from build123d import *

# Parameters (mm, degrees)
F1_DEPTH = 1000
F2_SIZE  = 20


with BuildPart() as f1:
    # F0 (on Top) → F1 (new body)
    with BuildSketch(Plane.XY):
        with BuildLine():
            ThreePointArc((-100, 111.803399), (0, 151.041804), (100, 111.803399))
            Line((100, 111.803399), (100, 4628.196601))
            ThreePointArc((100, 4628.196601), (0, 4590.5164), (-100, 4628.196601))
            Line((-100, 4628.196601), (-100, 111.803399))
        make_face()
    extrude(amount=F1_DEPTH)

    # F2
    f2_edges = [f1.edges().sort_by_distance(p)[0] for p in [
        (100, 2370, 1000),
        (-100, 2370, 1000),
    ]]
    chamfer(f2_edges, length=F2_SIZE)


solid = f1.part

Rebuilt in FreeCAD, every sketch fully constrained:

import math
import FreeCAD as App
import Part
import Sketcher

V = App.Vector


def edges_at(feature, points):
    """Names of the edges that pass closest to the given points."""
    edges = feature.Shape.Edges
    near = lambda p: min(range(len(edges)), key=lambda i: edges[i].distToShape(Part.Vertex(*p))[0])
    return sorted({f"Edge{near(p) + 1}" for p in points})

doc = App.newDocument("Part")
body = doc.addObject("PartDesign::Body", "Body")

# Sketch on XY plane
sketch1 = body.newObject("Sketcher::SketchObject", "Sketch")
sketch1.AttachmentSupport = (doc.getObject("XY_Plane"), [""])
sketch1.MapMode = "FlatFace"
sketch1.addGeometry(Part.ArcOfCircle(Part.Circle(V(0, 3.996423, 0), V(0, 0, 1), 147.045381), math.radians(47.151499), math.radians(132.848501)), False)
sketch1.addGeometry(Part.LineSegment(V(100, 111.803399, 0), V(100, 4628.196601, 0)), False)
sketch1.addGeometry(Part.ArcOfCircle(Part.Circle(V(0, 4742.052183, 0), V(0, 0, 1), 151.535783), math.radians(-131.29302), math.radians(-48.70698)), False)
sketch1.addGeometry(Part.LineSegment(V(-100, 4628.196601, 0), V(-100, 111.803399, 0)), False)
sketch1.addConstraint(Sketcher.Constraint("Coincident", 0, 1, 1, 1))
sketch1.addConstraint(Sketcher.Constraint("Coincident", 1, 2, 2, 2))
sketch1.addConstraint(Sketcher.Constraint("Coincident", 2, 1, 3, 1))
sketch1.addConstraint(Sketcher.Constraint("Coincident", 3, 2, 0, 2))
sketch1.addConstraint(Sketcher.Constraint("Vertical", 1))
sketch1.addConstraint(Sketcher.Constraint("Vertical", 3))
sketch1.addConstraint(Sketcher.Constraint("Symmetric", 1, 2, 2, 1, -2))
sketch1.addConstraint(Sketcher.Constraint("PointOnObject", 0, 3, -2))
sketch1.addConstraint(Sketcher.Constraint("DistanceX", -1, 1, 0, 1, 100.0))
sketch1.addConstraint(Sketcher.Constraint("Radius", 0, 147.045381))
sketch1.addConstraint(Sketcher.Constraint("DistanceY", 1, 1, 1, 2, 4516.393202))
sketch1.addConstraint(Sketcher.Constraint("Radius", 2, 151.535783))
sketch1.addConstraint(Sketcher.Constraint("DistanceY", -1, 1, 0, 1, 111.803399))
pad1 = body.newObject("PartDesign::Pad", "Pad")
pad1.Profile = sketch1
pad1.Length = 1000
doc.recompute()

chamfer = body.newObject("PartDesign::Chamfer", "Chamfer")
chamfer.Base = (pad1, edges_at(pad1, [(100, 2370, 1000), (-100, 2370, 1000)]))
chamfer.Size = 20

doc.recompute()
